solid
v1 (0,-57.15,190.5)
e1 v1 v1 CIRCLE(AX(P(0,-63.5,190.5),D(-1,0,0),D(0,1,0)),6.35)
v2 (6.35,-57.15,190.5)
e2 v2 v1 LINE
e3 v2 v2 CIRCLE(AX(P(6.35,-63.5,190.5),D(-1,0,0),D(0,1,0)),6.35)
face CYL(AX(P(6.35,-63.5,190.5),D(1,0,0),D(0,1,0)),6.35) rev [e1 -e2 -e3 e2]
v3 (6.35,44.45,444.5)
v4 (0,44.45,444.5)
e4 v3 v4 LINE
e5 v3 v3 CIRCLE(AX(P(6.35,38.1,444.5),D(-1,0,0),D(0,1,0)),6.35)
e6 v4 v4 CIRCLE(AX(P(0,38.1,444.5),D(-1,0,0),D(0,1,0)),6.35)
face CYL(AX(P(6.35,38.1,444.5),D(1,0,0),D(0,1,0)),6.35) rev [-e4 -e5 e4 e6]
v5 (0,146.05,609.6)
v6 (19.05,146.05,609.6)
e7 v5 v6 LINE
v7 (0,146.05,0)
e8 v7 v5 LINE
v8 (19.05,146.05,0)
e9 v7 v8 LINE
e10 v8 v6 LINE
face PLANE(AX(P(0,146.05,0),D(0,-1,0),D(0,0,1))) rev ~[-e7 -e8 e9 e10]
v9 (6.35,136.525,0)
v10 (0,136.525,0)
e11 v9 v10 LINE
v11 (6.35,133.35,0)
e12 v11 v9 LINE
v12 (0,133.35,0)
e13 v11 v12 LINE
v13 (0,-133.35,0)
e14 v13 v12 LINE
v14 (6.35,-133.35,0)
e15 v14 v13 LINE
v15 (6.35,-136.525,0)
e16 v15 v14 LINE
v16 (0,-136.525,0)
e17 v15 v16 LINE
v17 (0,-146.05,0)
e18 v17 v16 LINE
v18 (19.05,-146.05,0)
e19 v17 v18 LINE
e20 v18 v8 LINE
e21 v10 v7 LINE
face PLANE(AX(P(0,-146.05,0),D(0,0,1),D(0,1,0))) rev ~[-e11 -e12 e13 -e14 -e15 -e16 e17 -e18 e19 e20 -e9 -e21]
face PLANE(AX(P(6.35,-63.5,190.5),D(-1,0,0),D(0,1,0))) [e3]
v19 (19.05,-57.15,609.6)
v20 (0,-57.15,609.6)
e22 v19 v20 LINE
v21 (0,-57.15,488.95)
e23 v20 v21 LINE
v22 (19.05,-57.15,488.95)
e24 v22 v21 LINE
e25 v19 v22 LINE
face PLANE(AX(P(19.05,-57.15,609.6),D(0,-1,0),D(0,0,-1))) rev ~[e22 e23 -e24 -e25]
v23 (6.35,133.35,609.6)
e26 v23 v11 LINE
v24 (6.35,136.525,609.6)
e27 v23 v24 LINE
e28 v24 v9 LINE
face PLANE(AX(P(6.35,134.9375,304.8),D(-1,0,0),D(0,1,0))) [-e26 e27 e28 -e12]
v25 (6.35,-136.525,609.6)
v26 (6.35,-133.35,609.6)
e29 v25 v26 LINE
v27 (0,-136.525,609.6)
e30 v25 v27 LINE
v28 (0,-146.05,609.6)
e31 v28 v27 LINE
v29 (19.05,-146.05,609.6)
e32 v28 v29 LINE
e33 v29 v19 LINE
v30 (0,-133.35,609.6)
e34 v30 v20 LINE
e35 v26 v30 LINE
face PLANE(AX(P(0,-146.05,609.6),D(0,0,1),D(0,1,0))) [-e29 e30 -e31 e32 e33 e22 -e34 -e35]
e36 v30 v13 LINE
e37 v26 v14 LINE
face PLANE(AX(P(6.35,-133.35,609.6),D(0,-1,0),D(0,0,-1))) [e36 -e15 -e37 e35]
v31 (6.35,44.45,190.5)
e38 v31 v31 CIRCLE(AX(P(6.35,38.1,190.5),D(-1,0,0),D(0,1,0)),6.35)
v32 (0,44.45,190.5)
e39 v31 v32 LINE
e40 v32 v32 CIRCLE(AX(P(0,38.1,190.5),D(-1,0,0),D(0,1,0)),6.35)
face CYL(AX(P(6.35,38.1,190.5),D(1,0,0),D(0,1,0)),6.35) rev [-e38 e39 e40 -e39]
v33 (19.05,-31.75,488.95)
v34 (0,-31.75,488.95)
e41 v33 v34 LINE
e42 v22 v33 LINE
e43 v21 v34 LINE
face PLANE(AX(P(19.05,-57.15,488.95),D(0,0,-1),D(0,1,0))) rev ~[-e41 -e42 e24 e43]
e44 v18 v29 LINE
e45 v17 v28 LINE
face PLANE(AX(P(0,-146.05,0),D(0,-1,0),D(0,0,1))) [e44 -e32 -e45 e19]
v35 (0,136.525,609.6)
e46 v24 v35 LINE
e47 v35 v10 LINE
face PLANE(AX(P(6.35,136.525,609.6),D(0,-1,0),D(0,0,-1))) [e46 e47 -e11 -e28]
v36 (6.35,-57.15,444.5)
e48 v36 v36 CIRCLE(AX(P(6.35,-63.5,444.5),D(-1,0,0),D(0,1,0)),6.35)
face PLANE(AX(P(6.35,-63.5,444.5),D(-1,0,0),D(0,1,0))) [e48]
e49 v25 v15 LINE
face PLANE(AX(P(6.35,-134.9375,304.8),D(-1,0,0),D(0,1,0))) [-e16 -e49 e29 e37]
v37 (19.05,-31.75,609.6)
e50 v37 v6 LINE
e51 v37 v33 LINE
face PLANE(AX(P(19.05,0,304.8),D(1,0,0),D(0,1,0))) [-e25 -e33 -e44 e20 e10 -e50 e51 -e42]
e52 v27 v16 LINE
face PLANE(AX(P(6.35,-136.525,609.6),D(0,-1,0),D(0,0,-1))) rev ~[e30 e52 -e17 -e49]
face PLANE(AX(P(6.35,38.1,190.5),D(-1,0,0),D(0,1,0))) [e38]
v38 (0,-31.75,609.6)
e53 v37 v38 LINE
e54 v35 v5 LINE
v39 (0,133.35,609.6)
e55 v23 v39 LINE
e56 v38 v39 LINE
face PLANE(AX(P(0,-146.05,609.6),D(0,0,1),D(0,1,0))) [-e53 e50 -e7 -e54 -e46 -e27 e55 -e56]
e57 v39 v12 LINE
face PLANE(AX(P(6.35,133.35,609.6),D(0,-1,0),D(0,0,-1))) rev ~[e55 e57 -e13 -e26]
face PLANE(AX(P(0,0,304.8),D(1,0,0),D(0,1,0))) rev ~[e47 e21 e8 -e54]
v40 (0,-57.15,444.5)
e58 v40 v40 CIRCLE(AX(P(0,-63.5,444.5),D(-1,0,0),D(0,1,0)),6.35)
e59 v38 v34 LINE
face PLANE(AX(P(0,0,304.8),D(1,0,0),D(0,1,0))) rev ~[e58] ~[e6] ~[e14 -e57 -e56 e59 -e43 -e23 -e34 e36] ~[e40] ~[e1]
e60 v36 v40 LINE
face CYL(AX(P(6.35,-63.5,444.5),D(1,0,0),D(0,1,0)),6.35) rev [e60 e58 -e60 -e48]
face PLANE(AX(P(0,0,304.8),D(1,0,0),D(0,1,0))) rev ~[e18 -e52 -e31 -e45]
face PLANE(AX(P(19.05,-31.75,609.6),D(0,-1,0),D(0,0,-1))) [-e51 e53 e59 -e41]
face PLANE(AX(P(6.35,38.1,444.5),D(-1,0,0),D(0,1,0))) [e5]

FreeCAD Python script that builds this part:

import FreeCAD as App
import Part
import Sketcher
Q = App.Units.Quantity


def add_polygon(sketch, points):
    """Adds a closed chain of lines whose ends are joined by coincident constraints."""
    first, n = sketch.GeometryCount, len(points)
    for a, b in zip(points, points[1:] + points[:1]):
        sketch.addGeometry(Part.LineSegment(App.Vector(*a, 0), App.Vector(*b, 0)), False)
    for i in range(n):
        sketch.addConstraint(Sketcher.Constraint("Coincident", first + i, 2, first + (i + 1) % n, 1))

doc = App.newDocument("Part")
params = doc.addObject("Spreadsheet::Sheet", "Params")
for row, (alias, value) in enumerate([
    ("sketch1_height", "24 in"),
    ("sketch1_width", "11.5 in"),
    ("pad1_length", "0.75 in"),
    ("sketch2_height", "24 in"),
    ("sketch2_width", "0.125 in"),
    ("pocket1_length", "4.25 in"),
    ("sketch3_height", "24 in"),
    ("sketch3_width", "0.125 in"),
    ("pocket2_length", "0.25 in"),
    ("sketch4_diameter", "0.5 in"),
    ("pocket3_length", "0.25 in"),
    ("sketch5_diameter", "0.5 in"),
    ("pocket4_length", "0.25 in"),
    ("sketch6_diameter", "0.5 in"),
    ("pocket5_length", "0.25 in"),
    ("sketch7_diameter", "0.5 in"),
    ("pocket6_length", "0.25 in"),
    ("sketch8_width", "1 in"),
    ("sketch8_height", "4.75 in"),
    ("pocket7_length", "0.75 in"),
], start=1):
    params.set(f"A{row}", alias)
    params.set(f"B{row}", "=" + value)
    params.setAlias(f"B{row}", alias)

body = doc.addObject("PartDesign::Body", "Body")

sketch1 = body.newObject("Sketcher::SketchObject", "Sketch")
sketch1.AttachmentSupport = (doc.getObject("YZ_Plane"), [""])
sketch1.MapMode = "FlatFace"
add_polygon(sketch1, [(-146, 610), (-146, 0), (146, 0), (146, 610)])
sketch1.addConstraint(Sketcher.Constraint("Vertical", 0))
sketch1.addConstraint(Sketcher.Constraint("Horizontal", 1))
sketch1.addConstraint(Sketcher.Constraint("Vertical", 2))
sketch1.addConstraint(Sketcher.Constraint("Horizontal", 3))
sketch1.addConstraint(Sketcher.Constraint("Symmetric", 0, 2, 1, 2, -1, 1))
sketch1.addConstraint(Sketcher.Constraint("DistanceY", 0, 2, 0, 1, Q("24 in")))
sketch1.addConstraint(Sketcher.Constraint("DistanceX", 1, 1, 1, 2, Q("11.5 in")))
sketch1.setExpression("Constraints[9]", "Params.sketch1_height")
sketch1.setExpression("Constraints[10]", "Params.sketch1_width")
pad1 = body.newObject("PartDesign::Pad", "Pad")
pad1.Profile = sketch1
pad1.setExpression("Length", "Params.pad1_length")

sketch2 = body.newObject("Sketcher::SketchObject", "Sketch001")
sketch2.AttachmentSupport = (doc.getObject("YZ_Plane"), [""])
sketch2.MapMode = "FlatFace"
sketch2.AttachmentOffset = App.Placement(App.Vector(0, 0, 0.25 * 25.4), App.Rotation())
add_polygon(sketch2, [(133.3, 0), (133.3, 609.6), (136.5, 609.6), (136.5, 0)])
sketch2.addConstraint(Sketcher.Constraint("Vertical", 0))
sketch2.addConstraint(Sketcher.Constraint("Horizontal", 1))
sketch2.addConstraint(Sketcher.Constraint("Vertical", 2))
sketch2.addConstraint(Sketcher.Constraint("Horizontal", 3))
sketch2.addConstraint(Sketcher.Constraint("PointOnObject", 2, 2, -1))
sketch2.addConstraint(Sketcher.Constraint("DistanceY", 0, 1, 0, 2, Q("24 in")))
sketch2.addConstraint(Sketcher.Constraint("DistanceX", 1, 1, 1, 2, Q("0.125 in")))
sketch2.addConstraint(Sketcher.Constraint("DistanceX", -1, 1, 0, 2, Q("5.25 in")))
sketch2.setExpression("Constraints[9]", "Params.sketch2_height")
sketch2.setExpression("Constraints[10]", "Params.sketch2_width")
pocket1 = body.newObject("PartDesign::Pocket", "Pocket")
pocket1.Profile = sketch2
pocket1.setExpression("Length", "Params.pocket1_length")

sketch3 = body.newObject("Sketcher::SketchObject", "Sketch002")
sketch3.AttachmentSupport = (doc.getObject("YZ_Plane"), [""])
sketch3.MapMode = "FlatFace"
sketch3.AttachmentOffset = App.Placement(App.Vector(0, 0, 0.25 * 25.4), App.Rotation())
add_polygon(sketch3, [(-136.5, 0), (-136.5, 609.6), (-133.3, 609.6), (-133.3, 0)])
sketch3.addConstraint(Sketcher.Constraint("Vertical", 0))
sketch3.addConstraint(Sketcher.Constraint("Horizontal", 1))
sketch3.addConstraint(Sketcher.Constraint("Vertical", 2))
sketch3.addConstraint(Sketcher.Constraint("Horizontal", 3))
sketch3.addConstraint(Sketcher.Constraint("PointOnObject", 2, 2, -1))
sketch3.addConstraint(Sketcher.Constraint("DistanceY", 0, 1, 0, 2, Q("24 in")))
sketch3.addConstraint(Sketcher.Constraint("DistanceX", 1, 1, 1, 2, Q("0.125 in")))
sketch3.addConstraint(Sketcher.Constraint("DistanceX", 1, 2, -1, 1, Q("5.25 in")))
sketch3.setExpression("Constraints[9]", "Params.sketch3_height")
sketch3.setExpression("Constraints[10]", "Params.sketch3_width")
pocket2 = body.newObject("PartDesign::Pocket", "Pocket001")
pocket2.Profile = sketch3
pocket2.setExpression("Length", "Params.pocket2_length")

sketch4 = body.newObject("Sketcher::SketchObject", "Sketch003")
sketch4.AttachmentSupport = (doc.getObject("YZ_Plane"), [""])
sketch4.MapMode = "FlatFace"
sketch4.AttachmentOffset = App.Placement(App.Vector(0, 0, 0.25 * 25.4), App.Rotation())
sketch4.addGeometry(Part.Circle(App.Vector(-64, 444, 0), App.Vector(0, 0, 1), 6), False)
sketch4.addConstraint(Sketcher.Constraint("Diameter", 0, Q("0.5 in")))
sketch4.addConstraint(Sketcher.Constraint("DistanceX", 0, 3, -1, 1, Q("2.5 in")))
sketch4.addConstraint(Sketcher.Constraint("DistanceY", -1, 1, 0, 3, Q("17.5 in")))
sketch4.setExpression("Constraints[0]", "Params.sketch4_diameter")
pocket3 = body.newObject("PartDesign::Pocket", "Pocket002")
pocket3.Profile = sketch4
pocket3.setExpression("Length", "Params.pocket3_length")

sketch5 = body.newObject("Sketcher::SketchObject", "Sketch004")
sketch5.AttachmentSupport = (doc.getObject("YZ_Plane"), [""])
sketch5.MapMode = "FlatFace"
sketch5.AttachmentOffset = App.Placement(App.Vector(0, 0, 0.25 * 25.4), App.Rotation())
sketch5.addGeometry(Part.Circle(App.Vector(38, 444, 0), App.Vector(0, 0, 1), 6), False)
sketch5.addConstraint(Sketcher.Constraint("Diameter", 0, Q("0.5 in")))
sketch5.addConstraint(Sketcher.Constraint("DistanceX", -1, 1, 0, 3, Q("1.5 in")))
sketch5.addConstraint(Sketcher.Constraint("DistanceY", -1, 1, 0, 3, Q("17.5 in")))
sketch5.setExpression("Constraints[0]", "Params.sketch5_diameter")
pocket4 = body.newObject("PartDesign::Pocket", "Pocket003")
pocket4.Profile = sketch5
pocket4.setExpression("Length", "Params.pocket4_length")

sketch6 = body.newObject("Sketcher::SketchObject", "Sketch005")
sketch6.AttachmentSupport = (doc.getObject("YZ_Plane"), [""])
sketch6.MapMode = "FlatFace"
sketch6.AttachmentOffset = App.Placement(App.Vector(0, 0, 0.25 * 25.4), App.Rotation())
sketch6.addGeometry(Part.Circle(App.Vector(38, 190, 0), App.Vector(0, 0, 1), 6), False)
sketch6.addConstraint(Sketcher.Constraint("Diameter", 0, Q("0.5 in")))
sketch6.addConstraint(Sketcher.Constraint("DistanceX", -1, 1, 0, 3, Q("1.5 in")))
sketch6.addConstraint(Sketcher.Constraint("DistanceY", -1, 1, 0, 3, Q("7.5 in")))
sketch6.setExpression("Constraints[0]", "Params.sketch6_diameter")
pocket5 = body.newObject("PartDesign::Pocket", "Pocket004")
pocket5.Profile = sketch6
pocket5.setExpression("Length", "Params.pocket5_length")

sketch7 = body.newObject("Sketcher::SketchObject", "Sketch006")
sketch7.AttachmentSupport = (doc.getObject("YZ_Plane"), [""])
sketch7.MapMode = "FlatFace"
sketch7.AttachmentOffset = App.Placement(App.Vector(0, 0, 0.25 * 25.4), App.Rotation())
sketch7.addGeometry(Part.Circle(App.Vector(-64, 190, 0), App.Vector(0, 0, 1), 6), False)
sketch7.addConstraint(Sketcher.Constraint("Diameter", 0, Q("0.5 in")))
sketch7.addConstraint(Sketcher.Constraint("DistanceX", 0, 3, -1, 1, Q("2.5 in")))
sketch7.addConstraint(Sketcher.Constraint("DistanceY", -1, 1, 0, 3, Q("7.5 in")))
sketch7.setExpression("Constraints[0]", "Params.sketch7_diameter")
pocket6 = body.newObject("PartDesign::Pocket", "Pocket005")
pocket6.Profile = sketch7
pocket6.setExpression("Length", "Params.pocket6_length")

sketch8 = body.newObject("Sketcher::SketchObject", "Sketch007")
sketch8.AttachmentSupport = (doc.getObject("YZ_Plane"), [""])
sketch8.MapMode = "FlatFace"
sketch8.AttachmentOffset = App.Placement(App.Vector(0, 0, 0.75 * 25.4), App.Rotation())
add_polygon(sketch8, [(-57, 489), (-57, 610), (-32, 610), (-32, 489)])
sketch8.addConstraint(Sketcher.Constraint("Vertical", 0))
sketch8.addConstraint(Sketcher.Constraint("Horizontal", 1))
sketch8.addConstraint(Sketcher.Constraint("Vertical", 2))
sketch8.addConstraint(Sketcher.Constraint("Horizontal", 3))
sketch8.addConstraint(Sketcher.Constraint("DistanceX", 1, 1, 1, 2, Q("1 in")))
sketch8.addConstraint(Sketcher.Constraint("DistanceY", -1, 1, 0, 2, Q("24 in")))
sketch8.addConstraint(Sketcher.Constraint("DistanceY", 0, 1, 0, 2, Q("4.75 in")))
sketch8.addConstraint(Sketcher.Constraint("DistanceX", 0, 2, -1, 1, Q("2.25 in")))
sketch8.setExpression("Constraints[8]", "Params.sketch8_width")
sketch8.setExpression("Constraints[10]", "Params.sketch8_height")
pocket7 = body.newObject("PartDesign::Pocket", "Pocket006")
pocket7.Profile = sketch8
pocket7.setExpression("Length", "Params.pocket7_length")

doc.recompute()
